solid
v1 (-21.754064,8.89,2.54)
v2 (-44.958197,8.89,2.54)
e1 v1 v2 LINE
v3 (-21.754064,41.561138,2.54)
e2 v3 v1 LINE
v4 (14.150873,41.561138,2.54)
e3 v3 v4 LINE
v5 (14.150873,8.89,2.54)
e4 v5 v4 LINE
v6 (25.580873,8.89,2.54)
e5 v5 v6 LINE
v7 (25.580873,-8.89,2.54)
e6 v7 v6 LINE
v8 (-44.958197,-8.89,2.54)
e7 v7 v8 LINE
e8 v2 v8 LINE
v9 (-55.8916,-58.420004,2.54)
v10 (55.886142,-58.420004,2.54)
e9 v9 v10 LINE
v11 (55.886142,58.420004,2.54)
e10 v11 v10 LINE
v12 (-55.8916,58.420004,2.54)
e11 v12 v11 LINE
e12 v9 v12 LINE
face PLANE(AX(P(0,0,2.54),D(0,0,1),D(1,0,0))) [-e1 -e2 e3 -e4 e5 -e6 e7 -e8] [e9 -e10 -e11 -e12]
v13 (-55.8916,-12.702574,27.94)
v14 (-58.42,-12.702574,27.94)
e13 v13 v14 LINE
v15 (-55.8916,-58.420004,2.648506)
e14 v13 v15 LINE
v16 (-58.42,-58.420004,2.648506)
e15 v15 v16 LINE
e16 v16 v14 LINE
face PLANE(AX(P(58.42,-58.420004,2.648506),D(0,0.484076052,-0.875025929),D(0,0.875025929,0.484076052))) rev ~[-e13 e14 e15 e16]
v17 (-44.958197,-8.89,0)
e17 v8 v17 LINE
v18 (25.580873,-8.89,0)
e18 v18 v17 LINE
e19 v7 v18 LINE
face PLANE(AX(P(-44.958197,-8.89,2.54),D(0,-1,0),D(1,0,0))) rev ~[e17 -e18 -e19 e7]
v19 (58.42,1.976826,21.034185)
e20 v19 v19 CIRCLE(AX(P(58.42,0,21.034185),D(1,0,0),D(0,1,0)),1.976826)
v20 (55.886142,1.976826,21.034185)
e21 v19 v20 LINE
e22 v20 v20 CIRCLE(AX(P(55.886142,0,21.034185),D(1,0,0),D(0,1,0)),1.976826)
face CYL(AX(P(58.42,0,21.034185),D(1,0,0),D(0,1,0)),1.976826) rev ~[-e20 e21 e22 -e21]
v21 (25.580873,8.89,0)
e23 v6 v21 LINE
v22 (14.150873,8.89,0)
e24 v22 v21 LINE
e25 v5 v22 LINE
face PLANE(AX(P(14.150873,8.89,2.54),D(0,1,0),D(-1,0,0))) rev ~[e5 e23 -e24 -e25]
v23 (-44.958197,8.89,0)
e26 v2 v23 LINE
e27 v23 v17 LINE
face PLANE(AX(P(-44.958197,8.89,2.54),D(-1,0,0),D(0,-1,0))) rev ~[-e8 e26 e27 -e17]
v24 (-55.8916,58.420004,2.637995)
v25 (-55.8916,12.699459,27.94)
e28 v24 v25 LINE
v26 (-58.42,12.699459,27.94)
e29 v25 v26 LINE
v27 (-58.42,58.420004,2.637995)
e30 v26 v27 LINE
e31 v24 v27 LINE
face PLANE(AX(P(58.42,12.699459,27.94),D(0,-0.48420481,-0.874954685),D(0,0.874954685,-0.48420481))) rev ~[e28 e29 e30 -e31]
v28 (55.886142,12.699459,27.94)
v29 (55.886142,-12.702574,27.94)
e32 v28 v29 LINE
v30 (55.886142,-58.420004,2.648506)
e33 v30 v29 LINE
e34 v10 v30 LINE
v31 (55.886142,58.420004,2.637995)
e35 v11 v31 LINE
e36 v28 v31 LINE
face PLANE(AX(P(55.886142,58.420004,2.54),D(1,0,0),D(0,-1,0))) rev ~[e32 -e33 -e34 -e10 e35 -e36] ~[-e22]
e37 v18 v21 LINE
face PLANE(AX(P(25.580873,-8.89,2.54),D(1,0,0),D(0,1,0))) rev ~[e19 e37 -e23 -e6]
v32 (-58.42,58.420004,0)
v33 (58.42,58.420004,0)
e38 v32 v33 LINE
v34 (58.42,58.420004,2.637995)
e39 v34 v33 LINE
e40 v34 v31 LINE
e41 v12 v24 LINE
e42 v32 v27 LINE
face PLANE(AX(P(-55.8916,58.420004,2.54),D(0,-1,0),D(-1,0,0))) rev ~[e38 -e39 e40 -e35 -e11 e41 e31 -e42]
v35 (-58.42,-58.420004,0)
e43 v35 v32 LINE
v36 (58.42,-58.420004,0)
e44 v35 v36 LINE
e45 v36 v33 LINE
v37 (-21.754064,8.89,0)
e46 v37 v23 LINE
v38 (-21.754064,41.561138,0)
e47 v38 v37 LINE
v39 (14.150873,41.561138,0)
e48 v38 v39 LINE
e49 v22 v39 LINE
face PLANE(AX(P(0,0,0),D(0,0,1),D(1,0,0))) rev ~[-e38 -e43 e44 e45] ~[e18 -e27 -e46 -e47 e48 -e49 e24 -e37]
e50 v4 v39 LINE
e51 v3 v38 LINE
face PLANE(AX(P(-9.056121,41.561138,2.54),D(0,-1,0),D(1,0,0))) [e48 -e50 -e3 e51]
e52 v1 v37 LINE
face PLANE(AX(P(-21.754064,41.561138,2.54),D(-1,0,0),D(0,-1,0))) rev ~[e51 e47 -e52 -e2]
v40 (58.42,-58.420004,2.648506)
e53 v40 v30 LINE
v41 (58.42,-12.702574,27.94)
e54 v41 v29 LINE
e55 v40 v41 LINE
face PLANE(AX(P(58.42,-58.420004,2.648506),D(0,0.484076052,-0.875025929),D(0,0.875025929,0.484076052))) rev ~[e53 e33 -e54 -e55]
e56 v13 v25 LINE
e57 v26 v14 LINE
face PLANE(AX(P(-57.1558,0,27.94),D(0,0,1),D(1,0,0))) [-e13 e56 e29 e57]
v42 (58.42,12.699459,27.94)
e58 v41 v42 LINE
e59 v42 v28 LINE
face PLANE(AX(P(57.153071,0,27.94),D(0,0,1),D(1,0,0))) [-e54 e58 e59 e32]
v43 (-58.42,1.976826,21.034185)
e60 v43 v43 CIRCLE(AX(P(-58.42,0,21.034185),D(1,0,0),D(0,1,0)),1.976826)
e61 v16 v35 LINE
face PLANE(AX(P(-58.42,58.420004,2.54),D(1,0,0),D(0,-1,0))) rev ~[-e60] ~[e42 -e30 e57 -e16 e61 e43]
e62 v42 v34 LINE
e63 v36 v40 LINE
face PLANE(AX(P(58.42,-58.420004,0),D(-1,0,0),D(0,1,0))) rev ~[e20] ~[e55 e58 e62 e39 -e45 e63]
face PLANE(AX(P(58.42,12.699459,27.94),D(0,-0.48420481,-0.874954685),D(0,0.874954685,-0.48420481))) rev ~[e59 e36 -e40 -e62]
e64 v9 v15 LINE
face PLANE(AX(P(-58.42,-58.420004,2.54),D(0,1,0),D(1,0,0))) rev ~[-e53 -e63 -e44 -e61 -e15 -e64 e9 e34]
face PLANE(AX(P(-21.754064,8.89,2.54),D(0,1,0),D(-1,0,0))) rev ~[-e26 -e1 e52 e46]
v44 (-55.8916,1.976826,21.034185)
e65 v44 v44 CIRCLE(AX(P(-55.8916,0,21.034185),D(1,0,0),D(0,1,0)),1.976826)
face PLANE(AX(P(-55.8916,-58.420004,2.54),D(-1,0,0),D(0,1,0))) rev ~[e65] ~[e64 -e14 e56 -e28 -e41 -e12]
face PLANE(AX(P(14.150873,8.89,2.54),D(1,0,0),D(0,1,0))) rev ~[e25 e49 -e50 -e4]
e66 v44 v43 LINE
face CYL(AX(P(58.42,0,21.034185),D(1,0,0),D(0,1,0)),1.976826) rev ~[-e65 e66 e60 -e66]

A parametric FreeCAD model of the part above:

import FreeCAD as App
import Part
import Sketcher
from FreeCAD import Vector
Q = App.Units.Quantity


def add_polygon(sketch, points):
    """Adds a closed chain of lines whose ends are joined by coincident constraints."""
    first, n = sketch.GeometryCount, len(points)
    for a, b in zip(points, points[1:] + points[:1]):
        sketch.addGeometry(Part.LineSegment(App.Vector(*a, 0), App.Vector(*b, 0)), False)
    for i in range(n):
        sketch.addConstraint(Sketcher.Constraint("Coincident", first + i, 2, first + (i + 1) % n, 1))

doc = App.newDocument("Part")
body = doc.addObject("PartDesign::Body", "Body")

sketch1 = body.newObject("Sketcher::SketchObject", "Sketch")
sketch1.AttachmentSupport = (doc.getObject("XY_Plane"), [""])
sketch1.MapMode = "FlatFace"
add_polygon(sketch1, [(-58.42, 58.420004), (-58.42, -58.420004), (58.42, -58.420004), (58.42, 58.420004)])
sketch1.addConstraint([
    Sketcher.Constraint("Vertical", 0),
    Sketcher.Constraint("Horizontal", 1),
    Sketcher.Constraint("Vertical", 2),
    Sketcher.Constraint("Horizontal", 3),
    Sketcher.Constraint("Symmetric", 0, 2, 2, 2, -1, 1),
    Sketcher.Constraint("DistanceX", 1, 1, 1, 2, Q("4.6 in")),
    Sketcher.Constraint("DistanceY", 0, 2, -1, 1, Q("2.3000002 in")),
])
pad1 = body.newObject("PartDesign::Pad", "Pad")
pad1.Profile = sketch1
pad1.Length = Q("0.1 in")

sketch2 = body.newObject("Sketcher::SketchObject", "Sketch001")
sketch2.AttachmentSupport = (doc.getObject("XY_Plane"), [""])
sketch2.MapMode = "FlatFace"
sketch2.AttachmentOffset = App.Placement(Vector(0, 0, 0.1 * 25.4), App.Rotation())
add_polygon(sketch2, [(-55.8916, -58.420004), (-55.8916, 58.420004), (-58.42, 58.420004), (-58.42, -58.420004)])
add_polygon(sketch2, [(58.42, 58.420004), (55.886142, 58.420004), (55.886142, -58.420004), (58.42, -58.420004)])
sketch2.addConstraint([
    Sketcher.Constraint("Vertical", 0),
    Sketcher.Constraint("Horizontal", 1),
    Sketcher.Constraint("Vertical", 2),
    Sketcher.Constraint("Horizontal", 3),
    Sketcher.Constraint("Horizontal", 4),
    Sketcher.Constraint("Vertical", 5),
    Sketcher.Constraint("Horizontal", 6),
    Sketcher.Constraint("Vertical", 7),
    Sketcher.Constraint("Symmetric", 1, 2, 6, 2, -1, 1),
    Sketcher.Constraint("Horizontal", 1, 2, 4, 2),
    Sketcher.Constraint("Horizontal", 3, 2, 5, 2),
    Sketcher.Constraint("DistanceY", -1, 1, 0, 2, Q("2.3000002 in")),
    Sketcher.Constraint("DistanceX", 1, 2, -1, 1, Q("2.3 in")),
    Sketcher.Constraint("DistanceX", 1, 2, 1, 1, 2.5284),
    Sketcher.Constraint("DistanceX", 4, 2, 4, 1, 2.533858),
])
pad2 = body.newObject("PartDesign::Pad", "Pad001")
pad2.Profile = sketch2
pad2.Length = Q("1 in")

sketch3 = body.newObject("Sketcher::SketchObject", "Sketch002")
sketch3.AttachmentSupport = (doc.getObject("XY_Plane"), [""])
sketch3.MapMode = "FlatFace"
sketch3.AttachmentOffset = App.Placement(Vector(0, 0, 0.1 * 25.4), App.Rotation())
add_polygon(sketch3, [(14.150873, 8.89), (14.150873, -8.89), (25.580873, -8.89), (25.580873, 8.89)])
sketch3.addConstraint([
    Sketcher.Constraint("Vertical", 0),
    Sketcher.Constraint("Horizontal", 1),
    Sketcher.Constraint("Vertical", 2),
    Sketcher.Constraint("Horizontal", 3),
    Sketcher.Constraint("DistanceY", 0, 2, 0, 1, Q("0.7 in")),
    Sketcher.Constraint("DistanceX", 1, 1, 1, 2, Q("0.45 in")),
    Sketcher.Constraint("DistanceY", 0, 2, -1, 1, Q("0.35 in")),
    Sketcher.Constraint("DistanceX", -1, 1, 0, 2, 14.150873),
])
pocket1 = body.newObject("PartDesign::Pocket", "Pocket")
pocket1.Profile = sketch3
pocket1.Length = Q("1 in")

sketch4 = body.newObject("Sketcher::SketchObject", "Sketch003")
sketch4.AttachmentSupport = (doc.getObject("YZ_Plane"), [""])
sketch4.MapMode = "FlatFace"
sketch4.AttachmentOffset = App.Placement(Vector(0, 0, 2.3 * 25.4), App.Rotation())
sketch4.addGeometry(Part.Circle(Vector(0, 21.034185, 0), Vector(0, 0, 1), 1.976826), False)
sketch4.addConstraint([
    Sketcher.Constraint("PointOnObject", 0, 3, -2),
    Sketcher.Constraint("Diameter", 0, 3.953652),
    Sketcher.Constraint("DistanceY", -1, 1, 0, 3, 21.034185),
])
pocket2 = body.newObject("PartDesign::Pocket", "Pocket001")
pocket2.Profile = sketch4
pocket2.Length = Q("5.58 in")

sketch5 = body.newObject("Sketcher::SketchObject", "Sketch004")
sketch5.AttachmentSupport = (doc.getObject("YZ_Plane"), [""])
sketch5.MapMode = "FlatFace"
sketch5.AttachmentOffset = App.Placement(Vector(0, 0, 2.3 * 25.4), App.Rotation())
add_polygon(sketch5, [(-58.420004, 2.648506), (-12.702574, 27.94), (-58.420004, 27.94)])
add_polygon(sketch5, [(58.420004, 27.94), (12.699459, 27.94), (58.420004, 2.637995)])
sketch5.addConstraint([
    Sketcher.Constraint("Horizontal", 1),
    Sketcher.Constraint("Vertical", 2),
    Sketcher.Constraint("Horizontal", 3),
    Sketcher.Constraint("Vertical", 5),
    Sketcher.Constraint("Symmetric", 1, 2, 5, 2, -2),
    Sketcher.Constraint("DistanceY", -1, 1, 0, 2, Q("1.1 in")),
    Sketcher.Constraint("DistanceX", 1, 2, -1, 1, Q("2.3000002 in")),
    Sketcher.Constraint("DistanceX", 1, 2, 1, 1, 45.71743),
    Sketcher.Constraint("DistanceX", 3, 2, 3, 1, 45.720545),
    Sketcher.Constraint("DistanceY", 2, 2, 2, 1, 25.291494),
    Sketcher.Constraint("DistanceY", 5, 1, 5, 2, 25.302005),
])
pocket3 = body.newObject("PartDesign::Pocket", "Pocket002")
pocket3.Profile = sketch5
pocket3.Length = Q("5.9 in")

sketch6 = body.newObject("Sketcher::SketchObject", "Sketch005")
sketch6.AttachmentSupport = (doc.getObject("XY_Plane"), [""])
sketch6.MapMode = "FlatFace"
sketch6.AttachmentOffset = App.Placement(Vector(0, 0, 0.1 * 25.4), App.Rotation())
add_polygon(sketch6, [(-44.958197, -8.89), (14.150873, -8.89), (14.150873, 8.89), (-9.05612, 8.89), (-9.05612, 41.561138), (-21.754064, 41.561138), (-21.754064, 8.89), (-44.958197, 8.89)])
sketch6.addConstraint([
    Sketcher.Constraint("Horizontal", 0),
    Sketcher.Constraint("Vertical", 1),
    Sketcher.Constraint("Horizontal", 2),
    Sketcher.Constraint("Vertical", 3),
    Sketcher.Constraint("Horizontal", 4),
    Sketcher.Constraint("Vertical", 5),
    Sketcher.Constraint("Horizontal", 6),
    Sketcher.Constraint("Vertical", 7),
    Sketcher.Constraint("Horizontal", 2, 2, 5, 2),
    Sketcher.Constraint("DistanceY", 1, 1, 1, 2, Q("0.7 in")),
    Sketcher.Constraint("DistanceY", 0, 2, -1, 1, Q("0.35 in")),
    Sketcher.Constraint("DistanceX", 0, 1, 0, 2, 59.10907),
    Sketcher.Constraint("DistanceX", 2, 2, 2, 1, 23.206993),
    Sketcher.Constraint("DistanceX", 4, 2, 4, 1, 12.697944),
    Sketcher.Constraint("DistanceY", 3, 1, 3, 2, 32.671138),
    Sketcher.Constraint("DistanceX", 2, 2, -1, 1, 9.05612),
])
pocket4 = body.newObject("PartDesign::Pocket", "Pocket003")
pocket4.Profile = sketch6
pocket4.Length = Q("1 in")

sketch7 = body.newObject("Sketcher::SketchObject", "Sketch006")
sketch7.AttachmentSupport = (doc.getObject("XY_Plane"), [""])
sketch7.MapMode = "FlatFace"
sketch7.AttachmentOffset = App.Placement(Vector(0, 0, 0.1 * 25.4), App.Rotation())
add_polygon(sketch7, [(-9.056121, 41.561138), (-9.056121, 8.89), (14.150873, 8.89), (14.150873, 41.561138)])
sketch7.addConstraint([
    Sketcher.Constraint("Vertical", 0),
    Sketcher.Constraint("Horizontal", 1),
    Sketcher.Constraint("Vertical", 2),
    Sketcher.Constraint("Horizontal", 3),
    Sketcher.Constraint("DistanceY", -1, 1, 0, 2, Q("0.35 in")),
    Sketcher.Constraint("DistanceX", 1, 1, 1, 2, 23.206993),
    Sketcher.Constraint("DistanceY", 0, 2, 0, 1, 32.671138),
    Sketcher.Constraint("DistanceX", 0, 2, -1, 1, 9.056121),
])
pocket5 = body.newObject("PartDesign::Pocket", "Pocket004")
pocket5.Profile = sketch7
pocket5.Length = Q("1 in")

doc.recompute()
